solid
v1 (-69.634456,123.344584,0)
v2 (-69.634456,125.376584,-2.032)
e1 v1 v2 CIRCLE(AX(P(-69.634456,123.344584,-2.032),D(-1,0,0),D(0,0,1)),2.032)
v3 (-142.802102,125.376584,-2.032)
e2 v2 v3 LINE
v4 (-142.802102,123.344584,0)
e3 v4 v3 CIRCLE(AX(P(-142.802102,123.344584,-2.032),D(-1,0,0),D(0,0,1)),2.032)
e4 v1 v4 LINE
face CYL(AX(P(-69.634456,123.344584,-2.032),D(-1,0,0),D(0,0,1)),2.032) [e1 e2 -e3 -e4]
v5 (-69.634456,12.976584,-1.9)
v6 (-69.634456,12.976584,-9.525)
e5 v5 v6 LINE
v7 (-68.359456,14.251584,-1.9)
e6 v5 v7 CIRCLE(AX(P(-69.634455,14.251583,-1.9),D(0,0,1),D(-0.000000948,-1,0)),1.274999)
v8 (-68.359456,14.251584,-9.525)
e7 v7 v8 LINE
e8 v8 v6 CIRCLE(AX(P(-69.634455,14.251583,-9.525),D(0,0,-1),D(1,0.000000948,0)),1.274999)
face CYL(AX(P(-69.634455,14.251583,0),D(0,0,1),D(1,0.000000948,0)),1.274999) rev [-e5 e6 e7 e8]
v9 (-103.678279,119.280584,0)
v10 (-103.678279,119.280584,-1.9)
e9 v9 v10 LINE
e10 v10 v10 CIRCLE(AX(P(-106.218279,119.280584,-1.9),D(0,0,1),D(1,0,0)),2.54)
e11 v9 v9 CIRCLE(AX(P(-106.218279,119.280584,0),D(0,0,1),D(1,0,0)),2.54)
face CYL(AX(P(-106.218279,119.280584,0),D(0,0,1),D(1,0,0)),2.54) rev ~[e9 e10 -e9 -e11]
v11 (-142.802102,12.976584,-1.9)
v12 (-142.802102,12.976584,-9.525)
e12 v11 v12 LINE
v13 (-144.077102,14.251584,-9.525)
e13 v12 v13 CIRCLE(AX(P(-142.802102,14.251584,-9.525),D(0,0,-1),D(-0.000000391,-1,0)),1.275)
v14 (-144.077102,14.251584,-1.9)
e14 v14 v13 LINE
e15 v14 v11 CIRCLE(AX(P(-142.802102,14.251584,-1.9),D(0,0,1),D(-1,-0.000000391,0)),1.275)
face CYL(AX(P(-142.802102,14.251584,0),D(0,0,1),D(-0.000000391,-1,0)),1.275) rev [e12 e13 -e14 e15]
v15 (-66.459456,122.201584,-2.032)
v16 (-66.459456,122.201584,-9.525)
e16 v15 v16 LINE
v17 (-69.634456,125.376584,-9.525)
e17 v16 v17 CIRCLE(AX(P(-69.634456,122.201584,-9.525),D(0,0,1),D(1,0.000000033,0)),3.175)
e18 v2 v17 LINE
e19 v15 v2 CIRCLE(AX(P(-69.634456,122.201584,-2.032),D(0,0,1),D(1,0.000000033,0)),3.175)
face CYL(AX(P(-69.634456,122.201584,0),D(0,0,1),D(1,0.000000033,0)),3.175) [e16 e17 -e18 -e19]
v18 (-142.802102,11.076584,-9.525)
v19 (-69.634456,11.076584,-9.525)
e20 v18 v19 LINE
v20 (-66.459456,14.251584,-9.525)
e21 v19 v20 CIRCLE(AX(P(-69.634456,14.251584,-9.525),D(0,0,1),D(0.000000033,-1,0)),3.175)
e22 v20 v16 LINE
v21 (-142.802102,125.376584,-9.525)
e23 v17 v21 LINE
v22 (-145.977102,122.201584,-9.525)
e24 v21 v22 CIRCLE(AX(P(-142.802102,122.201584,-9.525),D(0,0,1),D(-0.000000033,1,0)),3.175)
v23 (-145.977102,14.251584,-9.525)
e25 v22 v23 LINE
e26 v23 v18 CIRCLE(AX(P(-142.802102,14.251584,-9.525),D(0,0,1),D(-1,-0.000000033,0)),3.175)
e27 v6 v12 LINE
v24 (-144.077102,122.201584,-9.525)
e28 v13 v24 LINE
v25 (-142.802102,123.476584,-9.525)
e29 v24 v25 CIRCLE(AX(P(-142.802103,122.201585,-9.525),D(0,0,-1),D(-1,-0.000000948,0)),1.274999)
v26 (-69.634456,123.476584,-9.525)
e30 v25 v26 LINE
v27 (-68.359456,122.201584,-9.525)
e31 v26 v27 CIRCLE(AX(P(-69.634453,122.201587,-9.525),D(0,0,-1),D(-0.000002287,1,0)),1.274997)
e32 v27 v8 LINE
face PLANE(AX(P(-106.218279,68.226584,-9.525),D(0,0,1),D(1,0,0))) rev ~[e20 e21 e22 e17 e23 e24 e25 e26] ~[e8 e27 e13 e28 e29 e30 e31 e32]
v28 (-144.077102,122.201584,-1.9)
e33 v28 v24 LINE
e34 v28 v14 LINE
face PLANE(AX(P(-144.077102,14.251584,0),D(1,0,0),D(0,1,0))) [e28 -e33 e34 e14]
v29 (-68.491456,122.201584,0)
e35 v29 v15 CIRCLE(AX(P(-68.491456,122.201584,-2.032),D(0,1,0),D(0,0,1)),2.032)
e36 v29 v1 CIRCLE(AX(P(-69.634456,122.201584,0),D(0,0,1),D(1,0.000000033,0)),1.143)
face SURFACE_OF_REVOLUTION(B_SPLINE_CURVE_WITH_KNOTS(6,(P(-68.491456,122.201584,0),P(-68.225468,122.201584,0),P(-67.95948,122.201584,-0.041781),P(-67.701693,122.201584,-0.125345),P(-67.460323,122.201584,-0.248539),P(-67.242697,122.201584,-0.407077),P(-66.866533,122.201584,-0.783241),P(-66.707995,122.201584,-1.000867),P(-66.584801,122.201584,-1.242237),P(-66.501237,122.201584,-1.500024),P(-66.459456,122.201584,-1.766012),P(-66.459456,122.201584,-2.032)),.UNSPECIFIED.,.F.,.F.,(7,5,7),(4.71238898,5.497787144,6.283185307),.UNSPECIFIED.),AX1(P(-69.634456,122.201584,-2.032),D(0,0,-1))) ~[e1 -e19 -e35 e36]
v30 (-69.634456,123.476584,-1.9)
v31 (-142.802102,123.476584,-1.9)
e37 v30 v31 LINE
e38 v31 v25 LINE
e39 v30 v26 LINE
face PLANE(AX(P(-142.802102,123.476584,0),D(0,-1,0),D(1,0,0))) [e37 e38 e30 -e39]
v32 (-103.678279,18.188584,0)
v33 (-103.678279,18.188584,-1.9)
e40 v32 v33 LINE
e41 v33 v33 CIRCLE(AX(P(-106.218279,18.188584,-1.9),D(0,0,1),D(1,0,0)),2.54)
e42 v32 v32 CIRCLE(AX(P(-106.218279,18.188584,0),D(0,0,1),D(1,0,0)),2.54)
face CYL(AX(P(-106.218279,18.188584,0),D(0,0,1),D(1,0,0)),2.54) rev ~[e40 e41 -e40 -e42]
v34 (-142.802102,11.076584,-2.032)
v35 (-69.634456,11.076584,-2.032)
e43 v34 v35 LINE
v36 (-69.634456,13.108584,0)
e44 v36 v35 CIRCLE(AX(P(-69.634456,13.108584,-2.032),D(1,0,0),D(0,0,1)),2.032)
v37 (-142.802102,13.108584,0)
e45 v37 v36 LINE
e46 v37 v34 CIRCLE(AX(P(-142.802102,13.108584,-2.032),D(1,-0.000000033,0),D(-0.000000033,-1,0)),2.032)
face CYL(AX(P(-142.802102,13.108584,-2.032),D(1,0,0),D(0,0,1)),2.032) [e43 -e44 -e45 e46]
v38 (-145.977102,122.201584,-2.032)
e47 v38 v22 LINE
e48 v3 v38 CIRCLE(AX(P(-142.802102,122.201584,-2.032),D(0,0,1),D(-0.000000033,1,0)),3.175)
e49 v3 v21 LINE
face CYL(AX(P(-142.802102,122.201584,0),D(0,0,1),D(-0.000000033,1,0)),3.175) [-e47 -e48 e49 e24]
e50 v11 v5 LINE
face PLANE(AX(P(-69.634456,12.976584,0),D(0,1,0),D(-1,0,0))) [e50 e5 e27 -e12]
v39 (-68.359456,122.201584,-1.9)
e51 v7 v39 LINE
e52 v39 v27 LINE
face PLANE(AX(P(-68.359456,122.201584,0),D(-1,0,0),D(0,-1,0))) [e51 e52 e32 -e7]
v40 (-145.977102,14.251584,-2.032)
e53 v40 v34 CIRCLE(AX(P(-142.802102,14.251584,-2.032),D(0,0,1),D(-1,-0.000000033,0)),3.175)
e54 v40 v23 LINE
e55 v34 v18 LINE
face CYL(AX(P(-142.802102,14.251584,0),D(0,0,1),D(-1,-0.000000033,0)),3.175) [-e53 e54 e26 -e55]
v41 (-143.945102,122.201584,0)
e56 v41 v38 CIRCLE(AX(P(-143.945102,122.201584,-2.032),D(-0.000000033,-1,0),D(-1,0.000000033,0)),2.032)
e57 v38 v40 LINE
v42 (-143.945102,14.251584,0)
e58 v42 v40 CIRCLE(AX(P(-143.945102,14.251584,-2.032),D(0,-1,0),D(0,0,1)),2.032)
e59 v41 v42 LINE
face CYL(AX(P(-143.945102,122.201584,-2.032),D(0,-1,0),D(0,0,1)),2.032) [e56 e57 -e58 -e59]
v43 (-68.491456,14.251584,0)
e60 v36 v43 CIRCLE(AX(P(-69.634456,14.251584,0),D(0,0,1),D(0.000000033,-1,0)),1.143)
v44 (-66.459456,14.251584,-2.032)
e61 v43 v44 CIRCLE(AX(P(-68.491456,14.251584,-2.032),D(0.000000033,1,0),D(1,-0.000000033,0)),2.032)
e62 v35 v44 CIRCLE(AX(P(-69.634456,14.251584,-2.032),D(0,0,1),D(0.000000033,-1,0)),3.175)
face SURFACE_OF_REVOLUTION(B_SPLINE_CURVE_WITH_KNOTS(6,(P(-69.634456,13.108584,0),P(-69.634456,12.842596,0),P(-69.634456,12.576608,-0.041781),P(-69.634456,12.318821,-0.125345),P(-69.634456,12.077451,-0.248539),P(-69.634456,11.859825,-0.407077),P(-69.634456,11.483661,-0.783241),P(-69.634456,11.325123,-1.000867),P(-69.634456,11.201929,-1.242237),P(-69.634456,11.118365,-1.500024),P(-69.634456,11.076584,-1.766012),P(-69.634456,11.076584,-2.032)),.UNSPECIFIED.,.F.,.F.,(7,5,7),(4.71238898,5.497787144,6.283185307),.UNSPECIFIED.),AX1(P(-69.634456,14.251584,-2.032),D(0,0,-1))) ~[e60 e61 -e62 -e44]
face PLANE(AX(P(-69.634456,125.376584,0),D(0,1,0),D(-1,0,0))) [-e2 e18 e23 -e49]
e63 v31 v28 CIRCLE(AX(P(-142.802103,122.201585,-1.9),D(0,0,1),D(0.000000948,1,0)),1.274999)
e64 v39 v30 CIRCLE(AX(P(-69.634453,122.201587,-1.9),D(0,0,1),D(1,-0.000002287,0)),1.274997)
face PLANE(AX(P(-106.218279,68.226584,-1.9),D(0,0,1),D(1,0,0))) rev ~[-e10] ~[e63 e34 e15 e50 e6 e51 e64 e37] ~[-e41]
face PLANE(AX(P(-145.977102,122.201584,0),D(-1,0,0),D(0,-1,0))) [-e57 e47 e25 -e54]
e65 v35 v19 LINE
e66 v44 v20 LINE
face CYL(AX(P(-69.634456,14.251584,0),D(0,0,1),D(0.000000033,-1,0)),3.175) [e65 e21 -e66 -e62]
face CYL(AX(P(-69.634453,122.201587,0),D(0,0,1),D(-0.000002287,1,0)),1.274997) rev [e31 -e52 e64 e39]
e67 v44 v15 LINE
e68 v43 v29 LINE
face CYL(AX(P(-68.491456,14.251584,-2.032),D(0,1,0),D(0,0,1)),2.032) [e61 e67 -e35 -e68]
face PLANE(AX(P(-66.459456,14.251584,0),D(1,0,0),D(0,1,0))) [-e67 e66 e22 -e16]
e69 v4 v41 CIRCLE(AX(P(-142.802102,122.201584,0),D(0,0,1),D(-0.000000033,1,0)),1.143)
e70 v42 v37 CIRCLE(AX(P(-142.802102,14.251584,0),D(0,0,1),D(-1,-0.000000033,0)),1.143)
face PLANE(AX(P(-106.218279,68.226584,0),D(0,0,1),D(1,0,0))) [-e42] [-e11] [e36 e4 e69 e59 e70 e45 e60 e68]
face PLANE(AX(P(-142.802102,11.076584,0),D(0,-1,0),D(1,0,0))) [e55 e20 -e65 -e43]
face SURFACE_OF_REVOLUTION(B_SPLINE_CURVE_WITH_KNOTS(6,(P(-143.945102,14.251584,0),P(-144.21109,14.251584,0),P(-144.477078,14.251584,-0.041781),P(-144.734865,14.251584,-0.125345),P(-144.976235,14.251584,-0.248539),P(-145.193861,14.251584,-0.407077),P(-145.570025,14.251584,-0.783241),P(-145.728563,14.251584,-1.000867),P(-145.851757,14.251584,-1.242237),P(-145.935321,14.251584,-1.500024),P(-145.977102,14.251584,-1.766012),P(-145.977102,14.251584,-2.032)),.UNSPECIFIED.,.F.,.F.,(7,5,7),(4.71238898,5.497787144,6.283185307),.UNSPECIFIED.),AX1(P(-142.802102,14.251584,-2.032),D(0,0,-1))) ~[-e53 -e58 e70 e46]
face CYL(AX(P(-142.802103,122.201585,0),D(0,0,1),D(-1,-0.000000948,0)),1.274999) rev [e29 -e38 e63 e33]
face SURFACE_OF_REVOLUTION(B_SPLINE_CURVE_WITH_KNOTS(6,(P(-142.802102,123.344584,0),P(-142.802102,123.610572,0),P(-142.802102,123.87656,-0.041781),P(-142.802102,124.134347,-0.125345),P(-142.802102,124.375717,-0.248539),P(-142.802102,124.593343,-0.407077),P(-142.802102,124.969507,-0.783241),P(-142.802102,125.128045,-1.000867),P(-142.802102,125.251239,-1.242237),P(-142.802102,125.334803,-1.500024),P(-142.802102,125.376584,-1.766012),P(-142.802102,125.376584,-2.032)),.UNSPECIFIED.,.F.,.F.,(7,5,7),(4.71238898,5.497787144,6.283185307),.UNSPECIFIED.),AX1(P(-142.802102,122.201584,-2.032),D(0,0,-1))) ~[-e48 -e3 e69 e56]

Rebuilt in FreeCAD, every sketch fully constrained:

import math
import FreeCAD as App
import Part
import Sketcher

V = App.Vector
Q = App.Units.Quantity


def edges_at(feature, points):
    """Names of the edges that pass closest to the given points."""
    edges = feature.Shape.Edges
    near = lambda p: min(range(len(edges)), key=lambda i: edges[i].distToShape(Part.Vertex(*p))[0])
    return sorted({f"Edge{near(p) + 1}" for p in points})

doc = App.newDocument("Part")
body = doc.addObject("PartDesign::Body", "Body")

sketch1 = doc.addObject("Sketcher::SketchObject", "Sketch")
body.addObject(sketch1)
sketch1.AttachmentSupport = (doc.XY_Plane, [""])
sketch1.MapMode = "FlatFace"
sketch1.addGeometry([
    Part.ArcOfCircle(Part.Circle(V(-69.6, 14.3, 0), V(0, 0, 1), 3.2), math.radians(-90), math.radians(0)),
    Part.LineSegment(V(-66.5, 14.3, 0), V(-66.5, 122.2, 0)),
    Part.ArcOfCircle(Part.Circle(V(-69.6, 122.2, 0), V(0, 0, 1), 3.2), math.radians(0), math.radians(90)),
    Part.LineSegment(V(-69.6, 125.4, 0), V(-142.8, 125.4, 0)),
    Part.ArcOfCircle(Part.Circle(V(-142.8, 122.2, 0), V(0, 0, 1), 3.2), math.radians(90), math.radians(180)),
    Part.LineSegment(V(-146, 122.2, 0), V(-146, 14.3, 0)),
    Part.ArcOfCircle(Part.Circle(V(-142.8, 14.3, 0), V(0, 0, 1), 3.2), math.radians(-180), math.radians(-90)),
    Part.LineSegment(V(-142.8, 11.1, 0), V(-69.6, 11.1, 0)),
    Part.LineSegment(V(-142.8, 123.5, 0), V(-69.6, 123.5, 0)),
    Part.ArcOfCircle(Part.Circle(V(-69.6, 122.2, 0), V(0, 0, 1), 1.3), math.radians(0), math.radians(90)),
    Part.LineSegment(V(-68.4, 122.2, 0), V(-68.4, 14.3, 0)),
    Part.ArcOfCircle(Part.Circle(V(-69.6, 14.3, 0), V(0, 0, 1), 1.3), math.radians(-90), math.radians(0)),
    Part.LineSegment(V(-69.6, 13, 0), V(-142.8, 13, 0)),
    Part.ArcOfCircle(Part.Circle(V(-142.8, 14.3, 0), V(0, 0, 1), 1.3), math.radians(-180), math.radians(-90)),
    Part.LineSegment(V(-144.1, 14.3, 0), V(-144.1, 122.2, 0)),
    Part.ArcOfCircle(Part.Circle(V(-142.8, 122.2, 0), V(0, 0, 1), 1.3), math.radians(90), math.radians(180)),
], False)
sketch1.addConstraint([
    Sketcher.Constraint("Tangent", 0, 2, 1, 1),
    Sketcher.Constraint("Tangent", 1, 2, 2, 1),
    Sketcher.Constraint("Tangent", 2, 2, 3, 1),
    Sketcher.Constraint("Tangent", 3, 2, 4, 1),
    Sketcher.Constraint("Tangent", 4, 2, 5, 1),
    Sketcher.Constraint("Tangent", 5, 2, 6, 1),
    Sketcher.Constraint("Tangent", 6, 2, 7, 1),
    Sketcher.Constraint("Tangent", 7, 2, 0, 1),
    Sketcher.Constraint("Coincident", 8, 2, 9, 2),
    Sketcher.Constraint("Coincident", 9, 1, 10, 1),
    Sketcher.Constraint("Tangent", 10, 2, 11, 2),
    Sketcher.Constraint("Tangent", 11, 1, 12, 1),
    Sketcher.Constraint("Tangent", 12, 2, 13, 2),
    Sketcher.Constraint("Tangent", 13, 1, 14, 1),
    Sketcher.Constraint("Tangent", 14, 2, 15, 2),
    Sketcher.Constraint("Tangent", 15, 1, 8, 1),
    Sketcher.Constraint("Vertical", 1),
    Sketcher.Constraint("Horizontal", 3),
    Sketcher.Constraint("Vertical", 5),
    Sketcher.Constraint("Horizontal", 7),
    Sketcher.Constraint("Horizontal", 8),
    Sketcher.Constraint("Vertical", 10),
    Sketcher.Constraint("Horizontal", 12),
    Sketcher.Constraint("Vertical", 14),
    Sketcher.Constraint("Coincident", 9, 3, 2, 3),
    Sketcher.Constraint("Coincident", 11, 3, 0, 3),
    Sketcher.Constraint("Coincident", 13, 3, 6, 3),
    Sketcher.Constraint("Equal", 0, 2),
    Sketcher.Constraint("Equal", 2, 4),
    Sketcher.Constraint("Equal", 4, 6),
    Sketcher.Constraint("Equal", 13, 15),
    Sketcher.Constraint("Horizontal", 4, 2, 9, 1),
    Sketcher.Constraint("Vertical", 7, 2, 8, 2),
    Sketcher.Constraint("Radius", 0, Q("0.125 in")),
    Sketcher.Constraint("DistanceY", 1, 1, 1, 2, Q("4.25 in")),
    Sketcher.Constraint("Radius", 11, Q("1.274999 mm")),
    Sketcher.Constraint("DistanceX", 4, 3, -1, 1, Q("142.802102 mm")),
    Sketcher.Constraint("DistanceX", 3, 2, 3, 1, Q("73.167646 mm")),
    Sketcher.Constraint("DistanceY", -1, 1, 0, 3, Q("14.251584 mm")),
])
pad1 = doc.addObject("PartDesign::Pad", "Pad")
body.addObject(pad1)
pad1.Profile = sketch1
pad1.Length = Q("0.375 in")
pad1.Reversed = True

sketch2 = doc.addObject("Sketcher::SketchObject", "Sketch001")
body.addObject(sketch2)
sketch2.AttachmentSupport = (doc.XY_Plane, [""])
sketch2.MapMode = "FlatFace"
sketch2.addGeometry([
    Part.LineSegment(V(-68.4, 14.3, 0), V(-68.4, 122.2, 0)),
    Part.ArcOfCircle(Part.Circle(V(-69.6, 122.2, 0), V(0, 0, 1), 1.3), math.radians(0), math.radians(90)),
    Part.LineSegment(V(-69.6, 123.5, 0), V(-142.8, 123.5, 0)),
    Part.ArcOfCircle(Part.Circle(V(-142.8, 122.2, 0), V(0, 0, 1), 1.3), math.radians(90), math.radians(180)),
    Part.LineSegment(V(-144.1, 122.2, 0), V(-144.1, 14.3, 0)),
    Part.ArcOfCircle(Part.Circle(V(-142.8, 14.3, 0), V(0, 0, 1), 1.3), math.radians(-180), math.radians(-90)),
    Part.LineSegment(V(-142.8, 13, 0), V(-69.6, 13, 0)),
    Part.ArcOfCircle(Part.Circle(V(-69.6, 14.3, 0), V(0, 0, 1), 1.3), math.radians(-90), math.radians(0)),
    Part.Circle(V(-106.2, 18.2, 0), V(0, 0, 1), 2.5),
    Part.Circle(V(-106.2, 119.3, 0), V(0, 0, 1), 2.5),
], False)
sketch2.addConstraint([
    Sketcher.Constraint("Coincident", 0, 2, 1, 1),
    Sketcher.Constraint("Coincident", 1, 2, 2, 1),
    Sketcher.Constraint("Tangent", 2, 2, 3, 1),
    Sketcher.Constraint("Tangent", 3, 2, 4, 1),
    Sketcher.Constraint("Tangent", 4, 2, 5, 1),
    Sketcher.Constraint("Tangent", 5, 2, 6, 1),
    Sketcher.Constraint("Tangent", 6, 2, 7, 1),
    Sketcher.Constraint("Tangent", 7, 2, 0, 1),
    Sketcher.Constraint("Vertical", 0),
    Sketcher.Constraint("Horizontal", 2),
    Sketcher.Constraint("Vertical", 4),
    Sketcher.Constraint("Horizontal", 6),
    Sketcher.Constraint("Equal", 1, 3),
    Sketcher.Constraint("Equal", 3, 5),
    Sketcher.Constraint("Equal", 5, 7),
    Sketcher.Constraint("Equal", 8, 9),
    Sketcher.Constraint("Horizontal", 3, 3, 0, 2),
    Sketcher.Constraint("Vertical", 8, 3, 9, 3),
    Sketcher.Constraint("Vertical", 7, 3, 1, 2),
    Sketcher.Constraint("Diameter", 8, Q("0.2 in")),
    Sketcher.Constraint("DistanceY", 0, 1, 0, 2, Q("4.25 in")),
    Sketcher.Constraint("Radius", 3, Q("1.274999 mm")),
    Sketcher.Constraint("DistanceY", 8, 3, 9, 3, Q("3.98 in")),
    Sketcher.Constraint("DistanceY", 5, 3, 8, 3, Q("0.155 in")),
    Sketcher.Constraint("DistanceX", 5, 3, -1, 1, Q("142.802102 mm")),
    Sketcher.Constraint("DistanceX", 2, 2, 2, 1, Q("73.167646 mm")),
    Sketcher.Constraint("DistanceX", 8, 3, -1, 1, Q("106.218279 mm")),
    Sketcher.Constraint("DistanceY", -1, 1, 1, 3, Q("122.201587 mm")),
])
pad2 = doc.addObject("PartDesign::Pad", "Pad001")
body.addObject(pad2)
pad2.Profile = sketch2
pad2.Length = 1.9
pad2.Reversed = True
doc.recompute()

fillet = doc.addObject("PartDesign::Fillet", "Fillet")
body.addObject(fillet)
fillet.Base = (pad2, edges_at(pad2, [(-106.218, 125.377, 0)]))
fillet.Radius = Q("0.08 in")

doc.recompute()
